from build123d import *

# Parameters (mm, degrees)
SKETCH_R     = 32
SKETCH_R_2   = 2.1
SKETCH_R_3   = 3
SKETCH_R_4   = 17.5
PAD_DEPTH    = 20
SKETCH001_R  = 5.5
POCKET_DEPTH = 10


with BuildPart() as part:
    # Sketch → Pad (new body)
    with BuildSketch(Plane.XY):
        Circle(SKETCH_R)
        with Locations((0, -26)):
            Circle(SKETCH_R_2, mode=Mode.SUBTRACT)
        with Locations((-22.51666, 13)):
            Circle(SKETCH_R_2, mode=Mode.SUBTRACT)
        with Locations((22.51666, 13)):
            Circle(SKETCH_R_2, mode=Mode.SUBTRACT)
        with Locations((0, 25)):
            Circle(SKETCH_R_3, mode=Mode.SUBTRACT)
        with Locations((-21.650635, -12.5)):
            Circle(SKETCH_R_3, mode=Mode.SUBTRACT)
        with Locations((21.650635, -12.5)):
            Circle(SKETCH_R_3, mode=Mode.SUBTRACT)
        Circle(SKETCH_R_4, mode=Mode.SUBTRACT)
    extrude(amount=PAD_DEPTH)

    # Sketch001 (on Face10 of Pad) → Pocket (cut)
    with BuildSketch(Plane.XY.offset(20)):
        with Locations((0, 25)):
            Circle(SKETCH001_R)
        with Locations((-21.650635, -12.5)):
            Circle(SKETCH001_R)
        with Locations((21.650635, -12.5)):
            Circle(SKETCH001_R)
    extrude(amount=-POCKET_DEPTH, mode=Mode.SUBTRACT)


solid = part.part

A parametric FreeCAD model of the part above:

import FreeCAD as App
import Part
import Sketcher
Q = App.Units.Quantity

doc = App.newDocument("Part")
body = doc.addObject("PartDesign::Body", "Body")

sketch1 = doc.addObject("Sketcher::SketchObject", "Sketch")
body.addObject(sketch1)
sketch1.AttachmentSupport = (doc.XY_Plane, [""])
sketch1.MapMode = "FlatFace"
sketch1.addGeometry(Part.Circle(App.Vector(0, 0, 0), App.Vector(0, 0, 1), 32), False)
sketch1.addGeometry(Part.Circle(App.Vector(-21.7, -12.5, 0), App.Vector(0, 0, 1), 3), False)
sketch1.addGeometry(Part.Circle(App.Vector(0, -26, 0), App.Vector(0, 0, 1), 2.1), False)
sketch1.addGeometry(Part.Circle(App.Vector(21.7, -12.5, 0), App.Vector(0, 0, 1), 3), False)
sketch1.addGeometry(Part.Circle(App.Vector(-22.5, 13, 0), App.Vector(0, 0, 1), 2.1), False)
sketch1.addGeometry(Part.Circle(App.Vector(0, 0, 0), App.Vector(0, 0, 1), 17.5), False)
sketch1.addGeometry(Part.Circle(App.Vector(22.5, 13, 0), App.Vector(0, 0, 1), 2.1), False)
sketch1.addGeometry(Part.Circle(App.Vector(0, 25, 0), App.Vector(0, 0, 1), 3), False)
sketch1.addConstraint(Sketcher.Constraint("Coincident", 0, 3, -1, 1))
sketch1.addConstraint(Sketcher.Constraint("Coincident", 5, 3, -1, 1))
sketch1.addConstraint(Sketcher.Constraint("Equal", 1, 3))
sketch1.addConstraint(Sketcher.Constraint("Equal", 2, 4))
sketch1.addConstraint(Sketcher.Constraint("Equal", 4, 6))
sketch1.addConstraint(Sketcher.Constraint("Equal", 3, 7))
sketch1.addConstraint(Sketcher.Constraint("Symmetric", 1, 3, 3, 3, -2))
sketch1.addConstraint(Sketcher.Constraint("Symmetric", 4, 3, 6, 3, -2))
sketch1.addConstraint(Sketcher.Constraint("PointOnObject", 2, 3, -2))
sketch1.addConstraint(Sketcher.Constraint("PointOnObject", 7, 3, -2))
sketch1.addConstraint(Sketcher.Constraint("Diameter", 0, Q("64 mm")))
sketch1.addConstraint(Sketcher.Constraint("Diameter", 1, Q("6 mm")))
sketch1.addConstraint(Sketcher.Constraint("Diameter", 5, Q("35 mm")))
sketch1.addConstraint(Sketcher.Constraint("Diameter", 2, Q("4.2 mm")))
sketch1.addConstraint(Sketcher.Constraint("DistanceY", 2, 3, -1, 1, Q("26 mm")))
sketch1.addConstraint(Sketcher.Constraint("DistanceY", -1, 1, 4, 3, Q("13 mm")))
sketch1.addConstraint(Sketcher.Constraint("DistanceY", -1, 1, 7, 3, Q("25 mm")))
sketch1.addConstraint(Sketcher.Constraint("DistanceY", 1, 3, -1, 1, Q("12.5 mm")))
sketch1.addConstraint(Sketcher.Constraint("DistanceX", 4, 3, -1, 1, Q("22.51666 mm")))
sketch1.addConstraint(Sketcher.Constraint("DistanceX", 1, 3, 3, 3, Q("43.30127 mm")))
pad1 = doc.addObject("PartDesign::Pad", "Pad")
body.addObject(pad1)
pad1.Profile = sketch1
pad1.Length = 20

sketch2 = doc.addObject("Sketcher::SketchObject", "Sketch001")
body.addObject(sketch2)
sketch2.AttachmentSupport = (doc.XY_Plane, [""])
sketch2.MapMode = "FlatFace"
sketch2.AttachmentOffset = App.Placement(App.Vector(0, 0, 20), App.Rotation())
sketch2.addGeometry(Part.Circle(App.Vector(0, 25, 0), App.Vector(0, 0, 1), 6), False)
sketch2.addGeometry(Part.Circle(App.Vector(-22, -12, 0), App.Vector(0, 0, 1), 6), False)
sketch2.addGeometry(Part.Circle(App.Vector(22, -12, 0), App.Vector(0, 0, 1), 6), False)
sketch2.addConstraint(Sketcher.Constraint("Equal", 0, 1))
sketch2.addConstraint(Sketcher.Constraint("Equal", 1, 2))
sketch2.addConstraint(Sketcher.Constraint("Symmetric", 1, 3, 2, 3, -2))
sketch2.addConstraint(Sketcher.Constraint("PointOnObject", 0, 3, -2))
sketch2.addConstraint(Sketcher.Constraint("Diameter", 0, Q("11 mm")))
sketch2.addConstraint(Sketcher.Constraint("DistanceY", -1, 1, 0, 3, Q("25 mm")))
sketch2.addConstraint(Sketcher.Constraint("DistanceY", 1, 3, -1, 1, Q("12.5 mm")))
sketch2.addConstraint(Sketcher.Constraint("DistanceX", 1, 3, 2, 3, Q("43.30127 mm")))
pocket1 = doc.addObject("PartDesign::Pocket", "Pocket")
body.addObject(pocket1)
pocket1.Profile = sketch2
pocket1.Length = 10

doc.recompute()
